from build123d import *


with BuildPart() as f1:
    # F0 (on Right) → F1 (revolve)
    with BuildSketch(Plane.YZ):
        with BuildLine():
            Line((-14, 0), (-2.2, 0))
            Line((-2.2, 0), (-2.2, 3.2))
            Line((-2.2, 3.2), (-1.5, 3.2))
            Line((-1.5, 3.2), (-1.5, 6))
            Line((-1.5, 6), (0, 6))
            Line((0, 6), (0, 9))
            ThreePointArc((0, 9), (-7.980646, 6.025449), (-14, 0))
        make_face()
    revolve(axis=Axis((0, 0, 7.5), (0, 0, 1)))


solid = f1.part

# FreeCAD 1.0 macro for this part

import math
import FreeCAD as App
import Part
import Sketcher

V = App.Vector

doc = App.newDocument("Part")
body = doc.addObject("PartDesign::Body", "Body")

sketch1 = doc.addObject("Sketcher::SketchObject", "Sketch")
body.addObject(sketch1)
sketch1.AttachmentSupport = (doc.YZ_Plane, [""])
sketch1.MapMode = "FlatFace"
sketch1.addGeometry(Part.LineSegment(V(-14, 0, 0), V(-2.2, 0, 0)), False)
sketch1.addGeometry(Part.LineSegment(V(-2.2, 0, 0), V(-2.2, 3.2, 0)), False)
sketch1.addGeometry(Part.LineSegment(V(-2.2, 3.2, 0), V(-1.5, 3.2, 0)), False)
sketch1.addGeometry(Part.LineSegment(V(-1.5, 3.2, 0), V(-1.5, 6, 0)), False)
sketch1.addGeometry(Part.LineSegment(V(-1.5, 6, 0), V(0, 6, 0)), False)
sketch1.addGeometry(Part.LineSegment(V(0, 6, 0), V(0, 9, 0)), False)
sketch1.addGeometry(Part.ArcOfCircle(Part.Circle(V(2.834505, -10.798119, 0), V(0, 0, 1), 19.999999), math.radians(98.147693), math.radians(147.32276)), False)
sketch1.addConstraint(Sketcher.Constraint("Coincident", 0, 2, 1, 1))
sketch1.addConstraint(Sketcher.Constraint("Coincident", 1, 2, 2, 1))
sketch1.addConstraint(Sketcher.Constraint("Coincident", 2, 2, 3, 1))
sketch1.addConstraint(Sketcher.Constraint("Coincident", 3, 2, 4, 1))
sketch1.addConstraint(Sketcher.Constraint("Coincident", 4, 2, 5, 1))
sketch1.addConstraint(Sketcher.Constraint("Coincident", 5, 2, 6, 1))
sketch1.addConstraint(Sketcher.Constraint("Coincident", 6, 2, 0, 1))
sketch1.addConstraint(Sketcher.Constraint("Horizontal", 0))
sketch1.addConstraint(Sketcher.Constraint("Vertical", 1))
sketch1.addConstraint(Sketcher.Constraint("Horizontal", 2))
sketch1.addConstraint(Sketcher.Constraint("Vertical", 3))
sketch1.addConstraint(Sketcher.Constraint("Horizontal", 4))
sketch1.addConstraint(Sketcher.Constraint("Vertical", 5))
sketch1.addConstraint(Sketcher.Constraint("PointOnObject", 0, 2, -1))
sketch1.addConstraint(Sketcher.Constraint("PointOnObject", 4, 2, -2))
sketch1.addConstraint(Sketcher.Constraint("Radius", 6, 19.999999))
sketch1.addConstraint(Sketcher.Constraint("DistanceY", 5, 1, 5, 2, 3.0))
sketch1.addConstraint(Sketcher.Constraint("DistanceX", 0, 1, 0, 2, 11.8))
sketch1.addConstraint(Sketcher.Constraint("DistanceX", 2, 1, 2, 2, 0.7))
sketch1.addConstraint(Sketcher.Constraint("DistanceX", 4, 1, 4, 2, 1.5))
sketch1.addConstraint(Sketcher.Constraint("DistanceY", 1, 1, 1, 2, 3.2))
sketch1.addConstraint(Sketcher.Constraint("DistanceY", 3, 1, 3, 2, 2.8))
revolution = doc.addObject("PartDesign::Revolution", "Revolution")
body.addObject(revolution)
revolution.Profile = sketch1
revolution.ReferenceAxis = (sketch1, ["V_Axis"])
revolution.Angle = 360

doc.recompute()
